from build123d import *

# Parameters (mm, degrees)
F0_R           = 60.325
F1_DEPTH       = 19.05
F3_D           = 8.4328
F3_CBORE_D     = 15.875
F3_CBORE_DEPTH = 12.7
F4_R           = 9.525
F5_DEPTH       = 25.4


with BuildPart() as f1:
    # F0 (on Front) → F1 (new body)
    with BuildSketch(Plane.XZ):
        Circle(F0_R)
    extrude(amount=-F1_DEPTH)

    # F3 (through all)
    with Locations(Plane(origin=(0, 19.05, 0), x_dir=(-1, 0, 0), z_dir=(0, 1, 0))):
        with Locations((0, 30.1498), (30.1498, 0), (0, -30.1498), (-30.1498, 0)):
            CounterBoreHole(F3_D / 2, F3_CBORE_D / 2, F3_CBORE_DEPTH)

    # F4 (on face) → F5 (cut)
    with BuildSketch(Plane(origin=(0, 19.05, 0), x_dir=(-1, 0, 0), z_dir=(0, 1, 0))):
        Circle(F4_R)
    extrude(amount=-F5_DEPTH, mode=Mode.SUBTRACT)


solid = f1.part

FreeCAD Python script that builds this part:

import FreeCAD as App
import Part
import Sketcher
from FreeCAD import Vector
Q = App.Units.Quantity

doc = App.newDocument("Part")
body = doc.addObject("PartDesign::Body", "Body")

sketch1 = body.newObject("Sketcher::SketchObject", "Sketch")
sketch1.AttachmentSupport = (doc.getObject("XZ_Plane"), [""])
sketch1.MapMode = "FlatFace"
sketch1.addGeometry(Part.Circle(Vector(0, 0, 0), Vector(0, 0, 1), 60), False)
sketch1.addConstraint([
    Sketcher.Constraint("Coincident", 0, 3, -1, 1),
    Sketcher.Constraint("Diameter", 0, Q("4.75 in")),
])
pad1 = body.newObject("PartDesign::Pad", "Pad")
pad1.Profile = sketch1
pad1.Length = Q("0.75 in")
pad1.Reversed = True

sketch2 = body.newObject("Sketcher::SketchObject", "Sketch001")
sketch2.AttachmentSupport = (doc.getObject("XZ_Plane"), [""])
sketch2.MapMode = "FlatFace"
sketch2.AttachmentOffset = App.Placement(Vector(0, 0, -0.75 * 25.4), App.Rotation())
sketch2.addGeometry([
    Part.Circle(Vector(0, 30.1, 0), Vector(0, 0, 1), 4.2),
    Part.Circle(Vector(-30.1, 0, 0), Vector(0, 0, 1), 4.2),
    Part.Circle(Vector(0, -30.1, 0), Vector(0, 0, 1), 4.2),
    Part.Circle(Vector(30.1, 0, 0), Vector(0, 0, 1), 4.2),
], False)
sketch2.addConstraint([
    Sketcher.Constraint("Equal", 0, 1),
    Sketcher.Constraint("Equal", 1, 2),
    Sketcher.Constraint("Equal", 2, 3),
    Sketcher.Constraint("Symmetric", 0, 3, 2, 3, -1, 1),
    Sketcher.Constraint("Symmetric", 1, 3, 3, 3, -1, 1),
    Sketcher.Constraint("PointOnObject", 0, 3, -2),
    Sketcher.Constraint("PointOnObject", 1, 3, -1),
    Sketcher.Constraint("Diameter", 0, Q("0.332 in")),
    Sketcher.Constraint("DistanceY", -1, 1, 0, 3, Q("1.187 in")),
    Sketcher.Constraint("DistanceX", 1, 3, -1, 1, Q("1.187 in")),
])
doc.recompute()
hole = body.newObject("PartDesign::Hole", "Hole")
hole.Profile = sketch2
hole.ThreadType = "None"
hole.Diameter = Q("0.332 in")
hole.DepthType = "ThroughAll"
hole.HoleCutType = "Counterbore"
hole.HoleCutDiameter = Q("0.625 in")
hole.HoleCutDepth = Q("0.5 in")
hole.Reversed = True

sketch3 = body.newObject("Sketcher::SketchObject", "Sketch002")
sketch3.AttachmentSupport = (doc.getObject("XZ_Plane"), [""])
sketch3.MapMode = "FlatFace"
sketch3.AttachmentOffset = App.Placement(Vector(0, 0, -0.75 * 25.4), App.Rotation())
sketch3.addGeometry(Part.Circle(Vector(0, 0, 0), Vector(0, 0, 1), 10), False)
sketch3.addConstraint([
    Sketcher.Constraint("Coincident", 0, 3, -1, 1),
    Sketcher.Constraint("Diameter", 0, Q("0.75 in")),
])
pocket1 = body.newObject("PartDesign::Pocket", "Pocket")
pocket1.Profile = sketch3
pocket1.Length = Q("1 in")
pocket1.Reversed = True

doc.recompute()
